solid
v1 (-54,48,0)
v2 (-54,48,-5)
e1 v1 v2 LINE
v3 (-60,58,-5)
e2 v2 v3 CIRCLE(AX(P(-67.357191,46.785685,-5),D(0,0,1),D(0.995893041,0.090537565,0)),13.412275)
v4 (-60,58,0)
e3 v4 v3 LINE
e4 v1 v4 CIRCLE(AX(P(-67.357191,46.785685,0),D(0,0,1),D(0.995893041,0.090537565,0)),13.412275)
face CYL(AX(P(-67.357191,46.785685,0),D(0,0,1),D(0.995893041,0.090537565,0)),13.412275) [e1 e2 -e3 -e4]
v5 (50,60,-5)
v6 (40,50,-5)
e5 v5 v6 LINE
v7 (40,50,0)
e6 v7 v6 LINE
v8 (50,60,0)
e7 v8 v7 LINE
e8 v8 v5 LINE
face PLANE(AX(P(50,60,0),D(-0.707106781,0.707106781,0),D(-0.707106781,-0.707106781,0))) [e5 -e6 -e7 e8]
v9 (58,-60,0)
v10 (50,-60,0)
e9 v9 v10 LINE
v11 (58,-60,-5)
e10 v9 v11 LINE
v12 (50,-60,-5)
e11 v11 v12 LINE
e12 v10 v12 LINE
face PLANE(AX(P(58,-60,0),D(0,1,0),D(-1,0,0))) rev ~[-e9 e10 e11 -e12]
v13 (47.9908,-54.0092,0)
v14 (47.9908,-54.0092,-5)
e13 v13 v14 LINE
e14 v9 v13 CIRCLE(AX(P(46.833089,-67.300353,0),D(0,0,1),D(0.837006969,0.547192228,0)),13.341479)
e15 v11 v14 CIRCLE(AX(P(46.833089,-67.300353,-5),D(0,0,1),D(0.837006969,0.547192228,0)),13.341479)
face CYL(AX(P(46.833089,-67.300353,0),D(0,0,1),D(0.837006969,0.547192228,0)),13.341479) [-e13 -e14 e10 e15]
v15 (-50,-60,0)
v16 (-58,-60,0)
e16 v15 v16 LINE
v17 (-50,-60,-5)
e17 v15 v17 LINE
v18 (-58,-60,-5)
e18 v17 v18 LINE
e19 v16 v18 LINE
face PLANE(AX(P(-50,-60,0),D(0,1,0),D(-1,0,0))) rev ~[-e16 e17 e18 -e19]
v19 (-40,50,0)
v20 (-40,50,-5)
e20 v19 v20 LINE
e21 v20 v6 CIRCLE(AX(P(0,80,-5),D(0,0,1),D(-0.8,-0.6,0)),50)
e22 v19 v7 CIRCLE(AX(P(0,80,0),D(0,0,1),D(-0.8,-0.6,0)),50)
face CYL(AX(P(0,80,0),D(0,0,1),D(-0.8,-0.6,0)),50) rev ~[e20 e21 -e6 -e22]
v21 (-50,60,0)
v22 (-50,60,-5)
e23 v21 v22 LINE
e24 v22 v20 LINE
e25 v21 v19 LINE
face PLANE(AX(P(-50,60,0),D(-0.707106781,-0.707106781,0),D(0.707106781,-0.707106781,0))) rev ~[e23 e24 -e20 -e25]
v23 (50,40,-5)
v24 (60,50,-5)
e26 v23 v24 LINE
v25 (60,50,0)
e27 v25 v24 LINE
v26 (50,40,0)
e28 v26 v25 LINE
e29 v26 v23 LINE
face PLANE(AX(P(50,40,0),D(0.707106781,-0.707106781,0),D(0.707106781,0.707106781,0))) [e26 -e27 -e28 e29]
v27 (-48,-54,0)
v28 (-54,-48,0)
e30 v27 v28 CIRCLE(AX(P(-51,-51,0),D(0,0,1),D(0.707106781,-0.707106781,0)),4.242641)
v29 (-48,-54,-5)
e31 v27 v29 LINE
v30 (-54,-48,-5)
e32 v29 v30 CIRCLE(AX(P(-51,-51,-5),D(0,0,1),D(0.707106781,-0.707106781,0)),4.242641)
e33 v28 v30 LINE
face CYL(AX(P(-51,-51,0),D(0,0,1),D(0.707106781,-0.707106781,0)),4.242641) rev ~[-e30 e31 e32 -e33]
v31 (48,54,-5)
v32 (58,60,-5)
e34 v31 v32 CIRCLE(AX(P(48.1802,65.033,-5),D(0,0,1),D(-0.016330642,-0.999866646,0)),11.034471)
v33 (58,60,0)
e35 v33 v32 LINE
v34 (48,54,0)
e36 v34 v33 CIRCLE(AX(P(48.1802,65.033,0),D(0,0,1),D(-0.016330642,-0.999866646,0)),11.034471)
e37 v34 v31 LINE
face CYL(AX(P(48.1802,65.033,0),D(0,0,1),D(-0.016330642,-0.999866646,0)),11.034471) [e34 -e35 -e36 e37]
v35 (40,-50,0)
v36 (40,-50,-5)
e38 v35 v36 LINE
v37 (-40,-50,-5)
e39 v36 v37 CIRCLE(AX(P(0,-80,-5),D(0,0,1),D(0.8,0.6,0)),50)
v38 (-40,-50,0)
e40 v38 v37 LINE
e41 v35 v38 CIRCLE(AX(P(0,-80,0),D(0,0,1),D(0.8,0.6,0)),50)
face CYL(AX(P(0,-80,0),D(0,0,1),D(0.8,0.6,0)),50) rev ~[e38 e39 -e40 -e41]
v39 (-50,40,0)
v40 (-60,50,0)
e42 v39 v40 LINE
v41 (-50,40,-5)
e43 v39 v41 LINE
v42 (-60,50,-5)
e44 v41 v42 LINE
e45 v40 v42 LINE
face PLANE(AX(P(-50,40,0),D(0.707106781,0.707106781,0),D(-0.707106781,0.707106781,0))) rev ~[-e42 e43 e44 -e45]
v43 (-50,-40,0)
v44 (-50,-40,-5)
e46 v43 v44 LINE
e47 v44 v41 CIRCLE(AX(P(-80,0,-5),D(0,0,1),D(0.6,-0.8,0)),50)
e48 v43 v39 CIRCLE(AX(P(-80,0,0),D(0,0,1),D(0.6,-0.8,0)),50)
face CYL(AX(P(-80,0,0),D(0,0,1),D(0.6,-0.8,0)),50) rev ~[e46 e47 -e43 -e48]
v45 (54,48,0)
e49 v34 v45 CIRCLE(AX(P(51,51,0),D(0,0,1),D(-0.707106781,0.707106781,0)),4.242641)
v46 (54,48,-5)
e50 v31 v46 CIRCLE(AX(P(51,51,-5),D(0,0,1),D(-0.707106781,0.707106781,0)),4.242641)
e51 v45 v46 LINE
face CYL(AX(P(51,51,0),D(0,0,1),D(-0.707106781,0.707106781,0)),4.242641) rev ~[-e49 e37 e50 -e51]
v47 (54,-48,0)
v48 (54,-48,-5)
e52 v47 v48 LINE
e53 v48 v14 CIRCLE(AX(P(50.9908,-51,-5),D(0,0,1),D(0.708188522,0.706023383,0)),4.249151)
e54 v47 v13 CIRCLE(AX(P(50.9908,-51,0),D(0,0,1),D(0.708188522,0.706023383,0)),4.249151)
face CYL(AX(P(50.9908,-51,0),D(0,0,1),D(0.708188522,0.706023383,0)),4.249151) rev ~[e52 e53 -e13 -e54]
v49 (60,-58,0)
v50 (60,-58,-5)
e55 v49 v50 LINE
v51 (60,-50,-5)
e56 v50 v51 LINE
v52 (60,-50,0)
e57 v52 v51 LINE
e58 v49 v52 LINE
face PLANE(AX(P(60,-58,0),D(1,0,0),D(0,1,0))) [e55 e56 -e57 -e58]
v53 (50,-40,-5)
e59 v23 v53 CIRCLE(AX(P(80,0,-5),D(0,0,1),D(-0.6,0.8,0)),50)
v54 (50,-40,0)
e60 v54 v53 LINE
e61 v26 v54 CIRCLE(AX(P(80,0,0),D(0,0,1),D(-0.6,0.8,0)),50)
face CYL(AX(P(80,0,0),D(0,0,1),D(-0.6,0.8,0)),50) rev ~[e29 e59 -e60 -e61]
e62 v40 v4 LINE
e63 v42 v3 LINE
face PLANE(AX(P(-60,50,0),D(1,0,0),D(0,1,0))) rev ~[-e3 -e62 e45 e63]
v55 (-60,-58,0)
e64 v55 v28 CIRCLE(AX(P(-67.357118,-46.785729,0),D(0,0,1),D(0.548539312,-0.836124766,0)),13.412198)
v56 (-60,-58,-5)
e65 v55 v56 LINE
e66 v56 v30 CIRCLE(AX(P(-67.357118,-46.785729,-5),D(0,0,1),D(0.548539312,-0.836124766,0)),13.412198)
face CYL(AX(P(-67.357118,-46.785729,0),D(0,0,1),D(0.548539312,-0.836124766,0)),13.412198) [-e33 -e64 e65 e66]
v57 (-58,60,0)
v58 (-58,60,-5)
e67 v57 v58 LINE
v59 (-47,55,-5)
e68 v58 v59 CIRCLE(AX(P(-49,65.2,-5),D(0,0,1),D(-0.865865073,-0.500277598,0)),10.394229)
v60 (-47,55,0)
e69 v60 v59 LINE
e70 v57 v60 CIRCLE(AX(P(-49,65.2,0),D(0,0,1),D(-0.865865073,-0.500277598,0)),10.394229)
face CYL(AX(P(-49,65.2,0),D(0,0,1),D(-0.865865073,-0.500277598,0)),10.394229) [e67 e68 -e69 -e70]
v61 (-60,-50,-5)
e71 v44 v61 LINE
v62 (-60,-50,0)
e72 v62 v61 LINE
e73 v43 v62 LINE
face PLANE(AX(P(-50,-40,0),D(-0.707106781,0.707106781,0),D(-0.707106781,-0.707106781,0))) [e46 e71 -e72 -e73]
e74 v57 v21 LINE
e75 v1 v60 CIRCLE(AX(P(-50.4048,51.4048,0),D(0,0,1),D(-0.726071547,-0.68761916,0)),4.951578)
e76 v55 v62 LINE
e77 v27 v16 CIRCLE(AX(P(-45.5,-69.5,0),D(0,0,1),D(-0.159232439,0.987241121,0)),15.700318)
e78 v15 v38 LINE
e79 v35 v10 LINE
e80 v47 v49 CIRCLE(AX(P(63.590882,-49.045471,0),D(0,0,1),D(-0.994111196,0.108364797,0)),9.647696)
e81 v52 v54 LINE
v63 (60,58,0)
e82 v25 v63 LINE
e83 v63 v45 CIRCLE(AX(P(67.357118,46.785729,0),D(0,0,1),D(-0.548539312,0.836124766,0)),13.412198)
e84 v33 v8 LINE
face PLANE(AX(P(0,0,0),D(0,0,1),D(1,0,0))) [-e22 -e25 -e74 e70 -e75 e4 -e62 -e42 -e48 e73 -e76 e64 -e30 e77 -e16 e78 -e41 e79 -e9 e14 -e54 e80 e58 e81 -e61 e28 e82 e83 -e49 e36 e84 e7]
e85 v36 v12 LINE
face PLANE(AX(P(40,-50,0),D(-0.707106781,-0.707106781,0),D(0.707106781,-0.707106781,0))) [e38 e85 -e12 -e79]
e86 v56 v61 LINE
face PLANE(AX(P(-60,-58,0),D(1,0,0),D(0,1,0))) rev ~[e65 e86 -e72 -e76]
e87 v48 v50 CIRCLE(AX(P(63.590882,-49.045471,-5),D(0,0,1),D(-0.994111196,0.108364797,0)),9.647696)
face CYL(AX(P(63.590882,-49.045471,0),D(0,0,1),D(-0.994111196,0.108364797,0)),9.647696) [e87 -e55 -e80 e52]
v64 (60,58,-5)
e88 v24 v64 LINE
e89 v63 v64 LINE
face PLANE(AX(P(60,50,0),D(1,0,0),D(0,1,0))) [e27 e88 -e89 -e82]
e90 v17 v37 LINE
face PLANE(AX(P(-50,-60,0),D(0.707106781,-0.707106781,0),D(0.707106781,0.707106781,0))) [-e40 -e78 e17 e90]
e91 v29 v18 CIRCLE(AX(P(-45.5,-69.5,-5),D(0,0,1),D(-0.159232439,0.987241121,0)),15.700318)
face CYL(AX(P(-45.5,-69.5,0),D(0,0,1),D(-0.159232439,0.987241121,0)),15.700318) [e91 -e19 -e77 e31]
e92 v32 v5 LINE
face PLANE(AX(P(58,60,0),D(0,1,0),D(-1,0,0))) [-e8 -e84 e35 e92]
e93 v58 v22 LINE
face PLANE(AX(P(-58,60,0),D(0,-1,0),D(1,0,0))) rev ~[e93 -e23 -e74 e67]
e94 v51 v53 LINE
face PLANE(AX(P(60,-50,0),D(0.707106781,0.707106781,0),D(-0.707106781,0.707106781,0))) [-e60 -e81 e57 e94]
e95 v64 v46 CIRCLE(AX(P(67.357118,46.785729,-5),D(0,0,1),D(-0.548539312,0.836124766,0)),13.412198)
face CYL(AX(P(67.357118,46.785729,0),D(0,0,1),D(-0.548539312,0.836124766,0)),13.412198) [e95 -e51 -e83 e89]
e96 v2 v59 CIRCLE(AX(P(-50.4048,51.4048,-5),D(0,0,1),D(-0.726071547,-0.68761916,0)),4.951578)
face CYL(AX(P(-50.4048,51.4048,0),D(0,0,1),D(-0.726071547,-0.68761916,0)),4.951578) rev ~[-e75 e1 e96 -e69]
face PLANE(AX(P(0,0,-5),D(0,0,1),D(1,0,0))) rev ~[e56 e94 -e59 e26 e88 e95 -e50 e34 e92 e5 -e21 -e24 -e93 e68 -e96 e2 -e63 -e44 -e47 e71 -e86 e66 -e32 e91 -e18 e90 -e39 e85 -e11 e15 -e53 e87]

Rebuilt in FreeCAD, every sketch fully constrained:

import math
import FreeCAD as App
import Part
import Sketcher
Q = App.Units.Quantity

doc = App.newDocument("Part")
body = doc.addObject("PartDesign::Body", "Body")

sketch1 = body.newObject("Sketcher::SketchObject", "Sketch")
sketch1.AttachmentSupport = (doc.getObject("XY_Plane"), [""])
sketch1.MapMode = "FlatFace"
sketch1.addGeometry([
    Part.ArcOfCircle(Part.Circle(App.Vector(-80, 0, 0), App.Vector(0, 0, 1), 50), math.radians(-53.130102), math.radians(53.130102)),
    Part.LineSegment(App.Vector(-50, -40, 0), App.Vector(-60, -50, 0)),
    Part.LineSegment(App.Vector(-60, -50, 0), App.Vector(-60, -58, 0)),
    Part.ArcOfCircle(Part.Circle(App.Vector(-67.3571, -46.7857, 0), App.Vector(0, 0, 1), 13.412213), math.radians(-56.733271), math.radians(-5.194506)),
    Part.ArcOfCircle(Part.Circle(App.Vector(-51, -51, 0), App.Vector(0, 0, 1), 4.242641), math.radians(-45), math.radians(135)),
    Part.ArcOfCircle(Part.Circle(App.Vector(-45.5, -69.5, 0), App.Vector(0, 0, 1), 15.700318), math.radians(99.162347), math.radians(142.765166)),
    Part.LineSegment(App.Vector(-58, -60, 0), App.Vector(-50, -60, 0)),
    Part.LineSegment(App.Vector(-50, -60, 0), App.Vector(-40, -50, 0)),
    Part.ArcOfCircle(Part.Circle(App.Vector(0, -80, 0), App.Vector(0, 0, 1), 50), math.radians(36.869898), math.radians(143.130102)),
    Part.LineSegment(App.Vector(40, -50, 0), App.Vector(50, -60, 0)),
    Part.LineSegment(App.Vector(50, -60, 0), App.Vector(58, -60, 0)),
    Part.ArcOfCircle(Part.Circle(App.Vector(46.833, -67.3003, 0), App.Vector(0, 0, 1), 13.341524), math.radians(33.174198), math.radians(85.021479)),
    Part.ArcOfCircle(Part.Circle(App.Vector(50.9908, -51, 0), App.Vector(0, 0, 1), 4.249151), math.radians(44.912281), math.radians(225.087719)),
    Part.ArcOfCircle(Part.Circle(App.Vector(63.5909, -49.0455, 0), App.Vector(0, 0, 1), 9.647716), math.radians(173.778776), math.radians(248.148413)),
    Part.LineSegment(App.Vector(60, -58, 0), App.Vector(60, -50, 0)),
    Part.LineSegment(App.Vector(60, -50, 0), App.Vector(50, -40, 0)),
    Part.ArcOfCircle(Part.Circle(App.Vector(80, 0, 0), App.Vector(0, 0, 1), 50), math.radians(126.869898), math.radians(233.130102)),
    Part.LineSegment(App.Vector(50, 40, 0), App.Vector(60, 50, 0)),
    Part.LineSegment(App.Vector(60, 50, 0), App.Vector(60, 58, 0)),
    Part.ArcOfCircle(Part.Circle(App.Vector(67.3571, 46.7857, 0), App.Vector(0, 0, 1), 13.412213), math.radians(123.266729), math.radians(174.805494)),
    Part.ArcOfCircle(Part.Circle(App.Vector(51, 51, 0), App.Vector(0, 0, 1), 4.242641), math.radians(135), math.radians(315)),
    Part.ArcOfCircle(Part.Circle(App.Vector(48.1802, 65.033, 0), App.Vector(0, 0, 1), 11.034471), math.radians(-90.935718), math.radians(-27.136768)),
    Part.LineSegment(App.Vector(58, 60, 0), App.Vector(50, 60, 0)),
    Part.LineSegment(App.Vector(50, 60, 0), App.Vector(40, 50, 0)),
    Part.ArcOfCircle(Part.Circle(App.Vector(0, 80, 0), App.Vector(0, 0, 1), 50), math.radians(-143.130102), math.radians(-36.869898)),
    Part.LineSegment(App.Vector(-40, 50, 0), App.Vector(-50, 60, 0)),
    Part.LineSegment(App.Vector(-50, 60, 0), App.Vector(-58, 60, 0)),
    Part.ArcOfCircle(Part.Circle(App.Vector(-49, 65.2, 0), App.Vector(0, 0, 1), 10.394229), math.radians(-149.981633), math.radians(-78.906277)),
    Part.ArcOfCircle(Part.Circle(App.Vector(-50.4048, 51.4048, 0), App.Vector(0, 0, 1), 4.951578), math.radians(-136.558061), math.radians(46.558061)),
    Part.ArcOfCircle(Part.Circle(App.Vector(-67.3572, 46.7857, 0), App.Vector(0, 0, 1), 13.412282), math.radians(5.194468), math.radians(56.732914)),
    Part.LineSegment(App.Vector(-60, 58, 0), App.Vector(-60, 50, 0)),
    Part.LineSegment(App.Vector(-60, 50, 0), App.Vector(-50, 40, 0)),
], False)
sketch1.addConstraint([
    Sketcher.Constraint("Coincident", 0, 1, 1, 1),
    Sketcher.Constraint("Coincident", 1, 2, 2, 1),
    Sketcher.Constraint("Coincident", 2, 2, 3, 1),
    Sketcher.Constraint("Coincident", 3, 2, 4, 2),
    Sketcher.Constraint("Coincident", 4, 1, 5, 1),
    Sketcher.Constraint("Coincident", 5, 2, 6, 1),
    Sketcher.Constraint("Coincident", 6, 2, 7, 1),
    Sketcher.Constraint("Coincident", 7, 2, 8, 2),
    Sketcher.Constraint("Coincident", 8, 1, 9, 1),
    Sketcher.Constraint("Coincident", 9, 2, 10, 1),
    Sketcher.Constraint("Coincident", 10, 2, 11, 1),
    Sketcher.Constraint("Coincident", 11, 2, 12, 2),
    Sketcher.Constraint("Coincident", 12, 1, 13, 1),
    Sketcher.Constraint("Coincident", 13, 2, 14, 1),
    Sketcher.Constraint("Coincident", 14, 2, 15, 1),
    Sketcher.Constraint("Coincident", 15, 2, 16, 2),
    Sketcher.Constraint("Coincident", 16, 1, 17, 1),
    Sketcher.Constraint("Coincident", 17, 2, 18, 1),
    Sketcher.Constraint("Coincident", 18, 2, 19, 1),
    Sketcher.Constraint("Coincident", 19, 2, 20, 2),
    Sketcher.Constraint("Coincident", 20, 1, 21, 1),
    Sketcher.Constraint("Coincident", 21, 2, 22, 1),
    Sketcher.Constraint("Coincident", 22, 2, 23, 1),
    Sketcher.Constraint("Coincident", 23, 2, 24, 2),
    Sketcher.Constraint("Coincident", 24, 1, 25, 1),
    Sketcher.Constraint("Coincident", 25, 2, 26, 1),
    Sketcher.Constraint("Coincident", 26, 2, 27, 1),
    Sketcher.Constraint("Coincident", 27, 2, 28, 2),
    Sketcher.Constraint("Coincident", 28, 1, 29, 1),
    Sketcher.Constraint("Coincident", 29, 2, 30, 1),
    Sketcher.Constraint("Coincident", 30, 2, 31, 1),
    Sketcher.Constraint("Coincident", 31, 2, 0, 2),
    Sketcher.Constraint("Vertical", 2),
    Sketcher.Constraint("Horizontal", 6),
    Sketcher.Constraint("Horizontal", 10),
    Sketcher.Constraint("Vertical", 14),
    Sketcher.Constraint("Vertical", 18),
    Sketcher.Constraint("Horizontal", 22),
    Sketcher.Constraint("Horizontal", 26),
    Sketcher.Constraint("Vertical", 30),
    Sketcher.Constraint("Equal", 0, 8),
    Sketcher.Constraint("Equal", 8, 16),
    Sketcher.Constraint("Equal", 3, 19),
    Sketcher.Constraint("Equal", 4, 20),
    Sketcher.Constraint("Equal", 16, 24),
    Sketcher.Constraint("Equal", 19, 29),
    Sketcher.Constraint("Symmetric", 0, 3, 16, 3, -1, 1),
    Sketcher.Constraint("Symmetric", 3, 3, 19, 3, -1, 1),
    Sketcher.Constraint("Symmetric", 4, 3, 20, 3, -1, 1),
    Sketcher.Constraint("Symmetric", 8, 3, 24, 3, -1, 1),
    Sketcher.Constraint("Symmetric", 1, 2, 17, 2, -1, 1),
    Sketcher.Constraint("Symmetric", 5, 2, 21, 2, -1, 1),
    Sketcher.Constraint("Symmetric", 9, 2, 25, 2, -1, 1),
    Sketcher.Constraint("Symmetric", 12, 1, 28, 1, -1, 1),
    Sketcher.Constraint("Symmetric", 13, 2, 29, 2, -1, 1),
    Sketcher.Constraint("Symmetric", 19, 3, 29, 3, -2),
    Sketcher.Constraint("Symmetric", 7, 2, 8, 1, -2),
    Sketcher.Constraint("Symmetric", 6, 2, 9, 2, -2),
    Sketcher.Constraint("Symmetric", 1, 2, 14, 2, -2),
    Sketcher.Constraint("Symmetric", 0, 1, 15, 2, -2),
    Sketcher.Constraint("Parallel", 1, 7),
    Sketcher.Constraint("Perpendicular", 7, 9),
    Sketcher.Constraint("Perpendicular", 15, 17),
    Sketcher.Constraint("Parallel", 17, 23),
    Sketcher.Constraint("Perpendicular", 23, 25),
    Sketcher.Constraint("Parallel", 25, 31),
    Sketcher.Constraint("Horizontal", 4, 3, 12, 3),
    Sketcher.Constraint("Horizontal", 1, 2, 7, 2),
    Sketcher.Constraint("Horizontal", 3, 2, 12, 1),
    Sketcher.Constraint("Horizontal", 17, 2, 23, 2),
    Sketcher.Constraint("Horizontal", 24, 1, 30, 2),
    Sketcher.Constraint("Vertical", 0, 1, 6, 2),
    Sketcher.Constraint("Vertical", 10, 2, 21, 2),
    Sketcher.Constraint("Vertical", 5, 2, 26, 2),
    Sketcher.Constraint("Equal", 26, 2),
    Sketcher.Constraint("Equal", 1, 7),
    Sketcher.Constraint("Radius", 0, Q("50 mm")),
    Sketcher.Constraint("DistanceX", 6, 1, 6, 2, Q("8 mm")),
    Sketcher.Constraint("DistanceX", 0, 3, -1, 1, Q("80 mm")),
    Sketcher.Constraint("DistanceX", 4, 3, -1, 1, Q("51 mm")),
    Sketcher.Constraint("DistanceY", 4, 3, -1, 1, Q("51 mm")),
    Sketcher.Constraint("DistanceY", 8, 3, -1, 1, Q("80 mm")),
    Sketcher.Constraint("DistanceX", 27, 3, -1, 1, Q("49 mm")),
    Sketcher.Constraint("DistanceX", 0, 1, -1, 1, Q("50 mm")),
    Sketcher.Constraint("DistanceX", 3, 2, -1, 1, Q("54 mm")),
    Sketcher.Constraint("DistanceY", 3, 2, -1, 1, Q("48 mm")),
    Sketcher.Constraint("DistanceX", 4, 1, -1, 1, Q("48 mm")),
    Sketcher.Constraint("DistanceX", -1, 1, 20, 1, Q("48 mm")),
    Sketcher.Constraint("DistanceX", 27, 2, -1, 1, Q("47 mm")),
    Sketcher.Constraint("DistanceY", -1, 1, 27, 2, Q("55 mm")),
    Sketcher.Constraint("DistanceX", 11, 2, 12, 3, Q("3 mm")),
    Sketcher.Constraint("DistanceX", 5, 3, -1, 1, Q("45.5 mm")),
    Sketcher.Constraint("Radius", 3, Q("13.4122 mm")),
    Sketcher.Constraint("Radius", 11, Q("13.3415 mm")),
    Sketcher.Constraint("Radius", 12, Q("4.2492 mm")),
    Sketcher.Constraint("Radius", 13, Q("9.6477 mm")),
    Sketcher.Constraint("Radius", 21, Q("11.0345 mm")),
    Sketcher.Constraint("Radius", 28, Q("4.9516 mm")),
])
pad1 = body.newObject("PartDesign::Pad", "Pad")
pad1.Profile = sketch1
pad1.Length = 5
pad1.Reversed = True

doc.recompute()
